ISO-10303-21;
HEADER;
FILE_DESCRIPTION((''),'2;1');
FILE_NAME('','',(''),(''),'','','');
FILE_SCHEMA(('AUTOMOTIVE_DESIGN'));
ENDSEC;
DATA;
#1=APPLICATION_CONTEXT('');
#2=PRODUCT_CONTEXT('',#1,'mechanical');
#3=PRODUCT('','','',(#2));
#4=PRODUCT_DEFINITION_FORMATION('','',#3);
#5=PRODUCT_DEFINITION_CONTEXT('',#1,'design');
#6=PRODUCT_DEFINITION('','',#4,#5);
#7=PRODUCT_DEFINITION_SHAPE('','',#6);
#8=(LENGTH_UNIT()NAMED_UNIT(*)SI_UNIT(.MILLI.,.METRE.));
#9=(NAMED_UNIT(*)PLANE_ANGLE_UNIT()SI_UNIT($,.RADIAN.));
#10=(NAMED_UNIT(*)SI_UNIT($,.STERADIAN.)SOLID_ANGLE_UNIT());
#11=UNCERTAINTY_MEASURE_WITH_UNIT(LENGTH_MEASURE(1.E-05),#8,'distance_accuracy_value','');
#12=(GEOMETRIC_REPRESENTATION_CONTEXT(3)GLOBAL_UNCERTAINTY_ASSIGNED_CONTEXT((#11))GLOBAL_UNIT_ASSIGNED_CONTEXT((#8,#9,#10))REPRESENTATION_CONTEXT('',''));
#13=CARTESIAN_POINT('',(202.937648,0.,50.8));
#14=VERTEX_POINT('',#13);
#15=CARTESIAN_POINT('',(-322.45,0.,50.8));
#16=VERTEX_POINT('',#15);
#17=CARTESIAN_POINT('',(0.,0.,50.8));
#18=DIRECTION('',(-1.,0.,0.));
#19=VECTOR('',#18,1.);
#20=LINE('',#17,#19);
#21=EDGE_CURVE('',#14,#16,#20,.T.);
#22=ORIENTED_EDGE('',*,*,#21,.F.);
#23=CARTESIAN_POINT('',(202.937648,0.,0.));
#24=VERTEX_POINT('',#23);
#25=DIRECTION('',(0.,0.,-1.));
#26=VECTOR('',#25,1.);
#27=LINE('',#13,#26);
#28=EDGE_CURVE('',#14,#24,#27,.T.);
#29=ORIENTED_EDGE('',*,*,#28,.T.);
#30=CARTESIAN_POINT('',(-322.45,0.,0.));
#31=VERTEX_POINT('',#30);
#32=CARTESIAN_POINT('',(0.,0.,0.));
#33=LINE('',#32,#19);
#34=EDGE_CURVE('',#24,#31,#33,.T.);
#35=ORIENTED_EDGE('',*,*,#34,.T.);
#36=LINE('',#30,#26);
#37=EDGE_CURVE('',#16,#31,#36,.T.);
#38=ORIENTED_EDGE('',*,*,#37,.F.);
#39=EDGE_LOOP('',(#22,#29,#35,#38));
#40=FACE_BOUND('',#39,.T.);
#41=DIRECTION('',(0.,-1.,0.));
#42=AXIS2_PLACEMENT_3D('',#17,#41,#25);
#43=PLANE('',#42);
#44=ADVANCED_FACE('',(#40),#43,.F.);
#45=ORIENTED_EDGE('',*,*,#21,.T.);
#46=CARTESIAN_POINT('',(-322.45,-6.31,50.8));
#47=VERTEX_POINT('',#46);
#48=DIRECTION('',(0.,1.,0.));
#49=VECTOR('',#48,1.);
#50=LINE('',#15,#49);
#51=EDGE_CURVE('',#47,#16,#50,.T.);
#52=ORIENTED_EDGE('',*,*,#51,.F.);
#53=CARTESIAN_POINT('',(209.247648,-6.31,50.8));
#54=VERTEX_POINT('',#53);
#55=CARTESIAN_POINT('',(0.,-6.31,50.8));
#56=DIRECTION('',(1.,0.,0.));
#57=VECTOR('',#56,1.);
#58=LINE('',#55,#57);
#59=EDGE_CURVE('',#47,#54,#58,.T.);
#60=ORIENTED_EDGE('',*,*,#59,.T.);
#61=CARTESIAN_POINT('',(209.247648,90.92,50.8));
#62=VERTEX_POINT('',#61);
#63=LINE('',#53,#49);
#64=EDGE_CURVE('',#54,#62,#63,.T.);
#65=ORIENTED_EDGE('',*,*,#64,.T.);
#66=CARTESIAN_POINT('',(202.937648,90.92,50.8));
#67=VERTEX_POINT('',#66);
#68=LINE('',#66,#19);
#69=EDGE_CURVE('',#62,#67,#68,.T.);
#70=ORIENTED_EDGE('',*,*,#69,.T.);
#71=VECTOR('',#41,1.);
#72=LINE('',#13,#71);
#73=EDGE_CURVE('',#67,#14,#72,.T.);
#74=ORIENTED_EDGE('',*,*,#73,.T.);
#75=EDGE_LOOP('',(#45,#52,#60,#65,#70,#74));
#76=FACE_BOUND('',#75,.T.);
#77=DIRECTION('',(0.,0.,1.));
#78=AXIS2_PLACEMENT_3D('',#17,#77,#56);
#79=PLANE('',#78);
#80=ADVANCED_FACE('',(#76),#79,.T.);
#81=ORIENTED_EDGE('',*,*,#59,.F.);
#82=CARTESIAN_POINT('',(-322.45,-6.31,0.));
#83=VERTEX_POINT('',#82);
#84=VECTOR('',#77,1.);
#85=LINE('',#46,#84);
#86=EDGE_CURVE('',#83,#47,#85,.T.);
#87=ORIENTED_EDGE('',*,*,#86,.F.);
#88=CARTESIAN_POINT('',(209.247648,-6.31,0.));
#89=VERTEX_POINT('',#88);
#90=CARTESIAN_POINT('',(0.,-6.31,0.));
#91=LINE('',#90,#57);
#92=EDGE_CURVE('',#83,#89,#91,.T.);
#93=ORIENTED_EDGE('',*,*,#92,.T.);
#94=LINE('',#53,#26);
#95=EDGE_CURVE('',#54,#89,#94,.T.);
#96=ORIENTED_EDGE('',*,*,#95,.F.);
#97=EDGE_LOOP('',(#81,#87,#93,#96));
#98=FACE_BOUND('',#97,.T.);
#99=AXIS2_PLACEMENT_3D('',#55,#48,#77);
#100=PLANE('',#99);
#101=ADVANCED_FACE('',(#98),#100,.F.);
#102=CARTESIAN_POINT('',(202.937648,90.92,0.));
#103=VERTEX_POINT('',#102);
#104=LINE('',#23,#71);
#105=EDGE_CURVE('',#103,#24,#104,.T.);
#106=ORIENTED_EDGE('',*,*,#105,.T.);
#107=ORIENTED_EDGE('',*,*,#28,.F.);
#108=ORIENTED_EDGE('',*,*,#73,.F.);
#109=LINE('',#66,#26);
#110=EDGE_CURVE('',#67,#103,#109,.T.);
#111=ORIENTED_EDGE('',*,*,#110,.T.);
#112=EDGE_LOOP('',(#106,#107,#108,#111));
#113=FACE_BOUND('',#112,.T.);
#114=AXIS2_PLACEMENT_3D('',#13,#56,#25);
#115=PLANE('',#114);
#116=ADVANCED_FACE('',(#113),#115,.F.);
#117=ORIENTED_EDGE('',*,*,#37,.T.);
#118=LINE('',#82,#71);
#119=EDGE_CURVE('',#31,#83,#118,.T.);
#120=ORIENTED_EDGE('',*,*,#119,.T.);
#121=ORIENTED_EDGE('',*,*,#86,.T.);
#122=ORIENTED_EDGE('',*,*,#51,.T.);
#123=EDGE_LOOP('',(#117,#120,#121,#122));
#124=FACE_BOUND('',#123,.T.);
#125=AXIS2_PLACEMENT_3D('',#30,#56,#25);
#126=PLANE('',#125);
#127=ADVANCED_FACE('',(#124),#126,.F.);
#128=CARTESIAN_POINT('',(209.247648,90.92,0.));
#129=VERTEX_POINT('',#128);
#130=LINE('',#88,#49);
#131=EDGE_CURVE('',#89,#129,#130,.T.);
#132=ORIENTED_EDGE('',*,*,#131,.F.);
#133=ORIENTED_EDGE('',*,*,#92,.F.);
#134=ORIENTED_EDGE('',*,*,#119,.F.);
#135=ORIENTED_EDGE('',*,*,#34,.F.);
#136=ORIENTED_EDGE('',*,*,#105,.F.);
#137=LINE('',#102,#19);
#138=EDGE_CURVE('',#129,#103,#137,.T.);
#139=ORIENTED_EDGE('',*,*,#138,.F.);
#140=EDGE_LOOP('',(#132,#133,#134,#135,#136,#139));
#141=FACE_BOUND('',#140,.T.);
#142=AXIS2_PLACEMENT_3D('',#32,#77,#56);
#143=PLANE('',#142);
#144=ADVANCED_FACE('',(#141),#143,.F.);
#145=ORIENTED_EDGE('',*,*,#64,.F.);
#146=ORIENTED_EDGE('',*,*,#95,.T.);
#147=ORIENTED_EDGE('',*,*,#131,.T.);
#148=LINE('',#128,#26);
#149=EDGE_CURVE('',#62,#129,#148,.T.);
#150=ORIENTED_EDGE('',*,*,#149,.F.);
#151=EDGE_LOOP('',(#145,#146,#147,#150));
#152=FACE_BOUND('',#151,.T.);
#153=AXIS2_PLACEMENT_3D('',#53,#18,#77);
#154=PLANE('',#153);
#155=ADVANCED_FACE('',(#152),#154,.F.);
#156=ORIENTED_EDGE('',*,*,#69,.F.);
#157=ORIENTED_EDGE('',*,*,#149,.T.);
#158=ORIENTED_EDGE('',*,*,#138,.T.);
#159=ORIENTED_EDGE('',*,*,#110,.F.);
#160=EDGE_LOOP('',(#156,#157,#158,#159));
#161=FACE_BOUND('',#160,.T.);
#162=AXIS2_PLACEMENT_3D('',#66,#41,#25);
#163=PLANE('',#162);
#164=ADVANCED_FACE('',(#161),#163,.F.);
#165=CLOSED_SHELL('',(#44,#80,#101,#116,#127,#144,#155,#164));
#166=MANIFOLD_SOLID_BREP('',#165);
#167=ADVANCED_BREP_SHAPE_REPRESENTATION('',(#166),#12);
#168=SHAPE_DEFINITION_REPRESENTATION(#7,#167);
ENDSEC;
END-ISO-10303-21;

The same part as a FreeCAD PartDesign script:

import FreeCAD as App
import Part
import Sketcher
from FreeCAD import Vector
Q = App.Units.Quantity

doc = App.newDocument("Part")
body = doc.addObject("PartDesign::Body", "Body")

# Sketch on XY plane
sketch1 = body.newObject("Sketcher::SketchObject", "Sketch")
sketch1.AttachmentSupport = (doc.getObject("XY_Plane"), [""])
sketch1.MapMode = "FlatFace"
sketch1.addGeometry([
    Part.LineSegment(Vector(202.937648, 0, 0), Vector(0, 0, 0)),  # 0
    Part.LineSegment(Vector(0, 0, 0), Vector(0, -6.31, 0)),  # 1
    Part.LineSegment(Vector(0, -6.31, 0), Vector(209.247648, -6.31, 0)),  # 2
    Part.LineSegment(Vector(209.247648, -6.31, 0), Vector(209.247648, 84.61, 0)),  # 3
    Part.LineSegment(Vector(209.247648, 84.61, 0), Vector(297.64, 84.61, 0)),  # 4
    Part.LineSegment(Vector(297.64, 84.61, 0), Vector(297.64, 90.92, 0)),  # 5
    Part.LineSegment(Vector(297.64, 90.92, 0), Vector(202.937648, 90.92, 0)),  # 6
    Part.LineSegment(Vector(202.937648, 90.92, 0), Vector(202.937648, 0, 0)),  # 7
], False)
sketch1.addConstraint([
    Sketcher.Constraint("Coincident", 0, 2, 1, 1),
    Sketcher.Constraint("Coincident", 1, 2, 2, 1),
    Sketcher.Constraint("Coincident", 2, 2, 3, 1),
    Sketcher.Constraint("Coincident", 3, 2, 4, 1),
    Sketcher.Constraint("Coincident", 4, 2, 5, 1),
    Sketcher.Constraint("Coincident", 5, 2, 6, 1),
    Sketcher.Constraint("Coincident", 6, 2, 7, 1),
    Sketcher.Constraint("Coincident", 7, 2, 0, 1),
    Sketcher.Constraint("Horizontal", 0),
    Sketcher.Constraint("Vertical", 1),
    Sketcher.Constraint("Horizontal", 2),
    Sketcher.Constraint("Vertical", 3),
    Sketcher.Constraint("Horizontal", 4),
    Sketcher.Constraint("Vertical", 5),
    Sketcher.Constraint("Horizontal", 6),
    Sketcher.Constraint("Vertical", 7),
    Sketcher.Constraint("Coincident", 0, 2, -1, 1),
    Sketcher.Constraint("Equal", 1, 5),
    Sketcher.Constraint("DistanceY", 1, 2, 1, 1, 6.31),
    Sketcher.Constraint("DistanceY", 3, 1, 3, 2, 90.92),
    Sketcher.Constraint("DistanceX", -1, 1, 4, 2, 297.64),
    Sketcher.Constraint("DistanceX", 6, 2, 3, 2, 6.31),
    Sketcher.Constraint("DistanceX", 0, 2, 0, 1, 202.937648),
])
pad1 = body.newObject("PartDesign::Pad", "Pad")
pad1.Profile = sketch1
pad1.Length = Q("2 in")

# Sketch on XZ plane
sketch2 = body.newObject("Sketcher::SketchObject", "Sketch001")
sketch2.AttachmentSupport = (doc.getObject("XZ_Plane"), [""])
sketch2.MapMode = "FlatFace"
sketch2.AttachmentOffset = App.Placement(Vector(0, 0, -84.61), App.Rotation())
sketch2.addGeometry([
    Part.LineSegment(Vector(209.247648, 50.8, 0), Vector(209.247648, 0, 0)),
    Part.LineSegment(Vector(209.247648, 0, 0), Vector(297.64, 0, 0)),
    Part.LineSegment(Vector(297.64, 0, 0), Vector(297.64, 50.8, 0)),
    Part.LineSegment(Vector(297.64, 50.8, 0), Vector(209.247648, 50.8, 0)),
], False)
sketch2.addConstraint([
    Sketcher.Constraint("Coincident", 0, 2, 1, 1),
    Sketcher.Constraint("Coincident", 1, 2, 2, 1),
    Sketcher.Constraint("Coincident", 2, 2, 3, 1),
    Sketcher.Constraint("Coincident", 3, 2, 0, 1),
    Sketcher.Constraint("Vertical", 0),
    Sketcher.Constraint("Horizontal", 1),
    Sketcher.Constraint("Vertical", 2),
    Sketcher.Constraint("Horizontal", 3),
    Sketcher.Constraint("PointOnObject", 0, 2, -1),
    Sketcher.Constraint("DistanceY", 0, 2, 0, 1, Q("2 in")),
    Sketcher.Constraint("DistanceX", -1, 1, 1, 2, 297.64),
    Sketcher.Constraint("DistanceX", 1, 1, 1, 2, 88.392352),
])
pocket1 = body.newObject("PartDesign::Pocket", "Pocket")
pocket1.Profile = sketch2
pocket1.Length = 6.31

# Sketch on YZ plane
sketch3 = body.newObject("Sketcher::SketchObject", "Sketch002")
sketch3.AttachmentSupport = (doc.getObject("YZ_Plane"), [""])
sketch3.MapMode = "FlatFace"
sketch3.addGeometry([
    Part.LineSegment(Vector(0, 0, 0), Vector(-6.31, 0, 0)),
    Part.LineSegment(Vector(-6.31, 0, 0), Vector(-6.31, 50.8, 0)),
    Part.LineSegment(Vector(-6.31, 50.8, 0), Vector(0, 50.8, 0)),
    Part.LineSegment(Vector(0, 50.8, 0), Vector(0, 0, 0)),
], False)
sketch3.addConstraint([
    Sketcher.Constraint("Coincident", 0, 2, 1, 1),
    Sketcher.Constraint("Coincident", 1, 2, 2, 1),
    Sketcher.Constraint("Coincident", 2, 2, 3, 1),
    Sketcher.Constraint("Coincident", 3, 2, 0, 1),
    Sketcher.Constraint("Horizontal", 0),
    Sketcher.Constraint("Vertical", 1),
    Sketcher.Constraint("Horizontal", 2),
    Sketcher.Constraint("Vertical", 3),
    Sketcher.Constraint("Coincident", 3, 2, -1, 1),
    Sketcher.Constraint("DistanceY", 1, 1, 1, 2, Q("2 in")),
    Sketcher.Constraint("DistanceX", 0, 2, 0, 1, 6.31),
])
pad2 = body.newObject("PartDesign::Pad", "Pad001")
pad2.Profile = sketch3
pad2.Length = 322.45
pad2.Reversed = True

doc.recompute()
